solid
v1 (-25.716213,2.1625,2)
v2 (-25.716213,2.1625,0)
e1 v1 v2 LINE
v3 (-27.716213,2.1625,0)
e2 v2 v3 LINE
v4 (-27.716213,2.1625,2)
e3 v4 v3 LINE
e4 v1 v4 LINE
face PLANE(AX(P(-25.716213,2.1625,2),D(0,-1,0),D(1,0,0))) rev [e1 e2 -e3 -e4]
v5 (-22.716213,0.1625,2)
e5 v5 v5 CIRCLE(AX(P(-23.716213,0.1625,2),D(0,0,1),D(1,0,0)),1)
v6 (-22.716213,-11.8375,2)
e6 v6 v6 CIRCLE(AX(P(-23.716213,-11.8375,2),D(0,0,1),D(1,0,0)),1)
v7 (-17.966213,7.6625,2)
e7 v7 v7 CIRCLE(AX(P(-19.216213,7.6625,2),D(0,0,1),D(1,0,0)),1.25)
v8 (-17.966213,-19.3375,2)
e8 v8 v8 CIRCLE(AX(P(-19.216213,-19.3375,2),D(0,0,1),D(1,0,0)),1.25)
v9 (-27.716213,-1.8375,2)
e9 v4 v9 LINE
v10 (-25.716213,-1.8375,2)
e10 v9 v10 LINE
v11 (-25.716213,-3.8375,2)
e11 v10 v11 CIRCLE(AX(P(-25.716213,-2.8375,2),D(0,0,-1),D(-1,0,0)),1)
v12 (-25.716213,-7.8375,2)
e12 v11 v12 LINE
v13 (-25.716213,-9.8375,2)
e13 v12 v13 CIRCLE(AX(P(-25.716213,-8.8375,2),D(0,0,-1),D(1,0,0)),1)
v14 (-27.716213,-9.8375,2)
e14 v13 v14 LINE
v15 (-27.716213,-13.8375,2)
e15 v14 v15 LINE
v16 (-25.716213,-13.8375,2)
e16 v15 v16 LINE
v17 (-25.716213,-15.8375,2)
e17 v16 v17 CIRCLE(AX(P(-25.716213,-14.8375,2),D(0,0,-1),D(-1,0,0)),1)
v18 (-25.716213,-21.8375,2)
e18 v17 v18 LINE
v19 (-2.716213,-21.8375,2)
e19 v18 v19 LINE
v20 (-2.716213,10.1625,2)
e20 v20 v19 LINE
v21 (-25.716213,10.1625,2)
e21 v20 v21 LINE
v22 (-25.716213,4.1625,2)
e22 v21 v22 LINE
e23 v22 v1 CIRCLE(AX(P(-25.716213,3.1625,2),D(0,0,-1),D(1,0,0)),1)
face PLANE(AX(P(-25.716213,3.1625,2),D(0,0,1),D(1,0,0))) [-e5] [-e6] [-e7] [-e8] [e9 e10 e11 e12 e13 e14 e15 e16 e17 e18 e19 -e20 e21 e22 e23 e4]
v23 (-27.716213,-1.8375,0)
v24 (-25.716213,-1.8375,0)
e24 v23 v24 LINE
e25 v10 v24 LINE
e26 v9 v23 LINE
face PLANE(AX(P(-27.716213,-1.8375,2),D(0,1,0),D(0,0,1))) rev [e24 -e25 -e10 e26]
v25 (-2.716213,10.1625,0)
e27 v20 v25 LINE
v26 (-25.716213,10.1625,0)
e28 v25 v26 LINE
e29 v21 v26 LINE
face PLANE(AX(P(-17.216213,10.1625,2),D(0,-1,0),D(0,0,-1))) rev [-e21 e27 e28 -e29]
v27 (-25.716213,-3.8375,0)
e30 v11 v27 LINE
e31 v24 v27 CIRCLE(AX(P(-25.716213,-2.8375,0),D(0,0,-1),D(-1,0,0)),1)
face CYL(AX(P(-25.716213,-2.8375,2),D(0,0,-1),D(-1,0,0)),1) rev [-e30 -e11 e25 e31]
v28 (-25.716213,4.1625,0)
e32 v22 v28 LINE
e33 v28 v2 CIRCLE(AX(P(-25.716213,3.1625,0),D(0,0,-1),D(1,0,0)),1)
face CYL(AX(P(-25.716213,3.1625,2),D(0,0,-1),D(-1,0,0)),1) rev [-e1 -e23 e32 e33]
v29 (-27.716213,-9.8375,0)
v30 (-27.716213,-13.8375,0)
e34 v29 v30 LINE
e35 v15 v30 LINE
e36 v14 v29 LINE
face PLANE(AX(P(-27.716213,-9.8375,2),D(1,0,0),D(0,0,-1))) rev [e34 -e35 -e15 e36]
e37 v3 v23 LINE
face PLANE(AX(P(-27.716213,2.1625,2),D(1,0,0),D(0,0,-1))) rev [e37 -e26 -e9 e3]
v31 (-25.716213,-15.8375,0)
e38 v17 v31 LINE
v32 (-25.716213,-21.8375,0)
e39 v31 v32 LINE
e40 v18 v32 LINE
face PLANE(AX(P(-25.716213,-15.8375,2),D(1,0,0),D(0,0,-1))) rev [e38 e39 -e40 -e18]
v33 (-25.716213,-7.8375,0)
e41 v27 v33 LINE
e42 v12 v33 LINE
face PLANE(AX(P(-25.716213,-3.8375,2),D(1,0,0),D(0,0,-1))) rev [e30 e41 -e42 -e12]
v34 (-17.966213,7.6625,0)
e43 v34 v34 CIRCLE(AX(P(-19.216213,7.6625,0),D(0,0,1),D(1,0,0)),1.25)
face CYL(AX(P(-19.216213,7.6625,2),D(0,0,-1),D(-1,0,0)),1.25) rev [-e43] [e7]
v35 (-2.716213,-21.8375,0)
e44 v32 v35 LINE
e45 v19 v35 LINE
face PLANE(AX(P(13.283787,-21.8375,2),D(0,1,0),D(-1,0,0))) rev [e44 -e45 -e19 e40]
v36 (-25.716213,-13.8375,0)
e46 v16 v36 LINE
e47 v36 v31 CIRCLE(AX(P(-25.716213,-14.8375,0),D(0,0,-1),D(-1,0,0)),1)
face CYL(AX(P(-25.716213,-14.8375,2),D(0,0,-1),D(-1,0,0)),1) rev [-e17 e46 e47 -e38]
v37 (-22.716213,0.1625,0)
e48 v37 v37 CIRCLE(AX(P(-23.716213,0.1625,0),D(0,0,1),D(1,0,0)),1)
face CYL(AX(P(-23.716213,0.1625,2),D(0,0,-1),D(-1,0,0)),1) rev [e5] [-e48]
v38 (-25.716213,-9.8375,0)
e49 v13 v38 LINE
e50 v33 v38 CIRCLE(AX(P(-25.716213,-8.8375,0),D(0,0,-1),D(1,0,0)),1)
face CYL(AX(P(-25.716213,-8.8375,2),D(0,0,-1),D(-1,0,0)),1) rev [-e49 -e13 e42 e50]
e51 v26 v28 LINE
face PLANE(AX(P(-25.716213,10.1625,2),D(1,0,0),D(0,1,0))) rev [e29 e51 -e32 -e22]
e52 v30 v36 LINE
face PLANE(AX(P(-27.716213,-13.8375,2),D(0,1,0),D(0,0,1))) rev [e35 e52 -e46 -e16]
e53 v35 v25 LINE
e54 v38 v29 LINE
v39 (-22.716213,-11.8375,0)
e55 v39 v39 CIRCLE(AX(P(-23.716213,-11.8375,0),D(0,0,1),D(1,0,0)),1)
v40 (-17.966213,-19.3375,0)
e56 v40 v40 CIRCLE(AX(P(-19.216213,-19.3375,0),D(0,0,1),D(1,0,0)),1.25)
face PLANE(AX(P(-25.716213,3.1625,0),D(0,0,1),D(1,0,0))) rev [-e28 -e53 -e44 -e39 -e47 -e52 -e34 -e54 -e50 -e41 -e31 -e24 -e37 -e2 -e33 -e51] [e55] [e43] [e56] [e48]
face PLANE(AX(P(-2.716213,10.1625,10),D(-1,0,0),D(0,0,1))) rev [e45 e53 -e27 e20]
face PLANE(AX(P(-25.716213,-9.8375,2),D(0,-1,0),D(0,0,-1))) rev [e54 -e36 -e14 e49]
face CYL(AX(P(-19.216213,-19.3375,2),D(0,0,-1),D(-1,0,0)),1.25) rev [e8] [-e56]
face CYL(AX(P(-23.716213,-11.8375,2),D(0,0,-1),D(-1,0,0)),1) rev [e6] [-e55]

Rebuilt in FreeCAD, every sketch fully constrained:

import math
import FreeCAD as App
import Part
import Sketcher
from FreeCAD import Vector
Q = App.Units.Quantity


def edges_at(feature, points):
    """Names of the edges that pass closest to the given points."""
    edges = feature.Shape.Edges
    near = lambda p: min(range(len(edges)), key=lambda i: edges[i].distToShape(Part.Vertex(*p))[0])
    return sorted({f"Edge{near(p) + 1}" for p in points})


def add_polygon(sketch, points):
    """Adds a closed chain of lines whose ends are joined by coincident constraints."""
    first, n = sketch.GeometryCount, len(points)
    for a, b in zip(points, points[1:] + points[:1]):
        sketch.addGeometry(Part.LineSegment(App.Vector(*a, 0), App.Vector(*b, 0)), False)
    for i in range(n):
        sketch.addConstraint(Sketcher.Constraint("Coincident", first + i, 2, first + (i + 1) % n, 1))

doc = App.newDocument("Part")
body = doc.addObject("PartDesign::Body", "Body")

# Sketch on XY plane
sketch1 = body.newObject("Sketcher::SketchObject", "Sketch")
sketch1.AttachmentSupport = (doc.getObject("XY_Plane"), [""])
sketch1.MapMode = "FlatFace"
sketch1.addGeometry([
    Part.LineSegment(Vector(13.3, -21.8, 0), Vector(13.3, 10.2, 0)),  # 0
    Part.LineSegment(Vector(13.3, 10.2, 0), Vector(-25.7, 10.2, 0)),  # 1
    Part.LineSegment(Vector(-25.7, 10.2, 0), Vector(-25.7, 4.2, 0)),  # 2
    Part.ArcOfCircle(Part.Circle(Vector(-25.7, 3.2, 0), Vector(0, 0, 1), 1), math.radians(-90), math.radians(90)),  # 3
    Part.LineSegment(Vector(-25.7, 2.2, 0), Vector(-27.7, 2.2, 0)),  # 4
    Part.LineSegment(Vector(-27.7, 2.2, 0), Vector(-27.7, -1.8, 0)),  # 5
    Part.LineSegment(Vector(-27.7, -1.8, 0), Vector(-25.7, -1.8, 0)),  # 6
    Part.ArcOfCircle(Part.Circle(Vector(-25.7, -2.8, 0), Vector(0, 0, 1), 1), math.radians(-90), math.radians(90)),  # 7
    Part.LineSegment(Vector(-25.7, -3.8, 0), Vector(-25.7, -7.8, 0)),  # 8
    Part.ArcOfCircle(Part.Circle(Vector(-25.7, -8.8, 0), Vector(0, 0, 1), 1), math.radians(-90), math.radians(90)),  # 9
    Part.LineSegment(Vector(-25.7, -9.8, 0), Vector(-27.7, -9.8, 0)),  # 10
    Part.LineSegment(Vector(-27.7, -9.8, 0), Vector(-27.7, -13.8, 0)),  # 11
    Part.LineSegment(Vector(-27.7, -13.8, 0), Vector(-25.7, -13.8, 0)),  # 12
    Part.ArcOfCircle(Part.Circle(Vector(-25.7, -14.8, 0), Vector(0, 0, 1), 1), math.radians(-90), math.radians(90)),  # 13
    Part.LineSegment(Vector(-25.7, -15.8, 0), Vector(-25.7, -21.8, 0)),  # 14
    Part.LineSegment(Vector(-25.7, -21.8, 0), Vector(13.3, -21.8, 0)),  # 15
    Part.Circle(Vector(10.8, -19.3, 0), Vector(0, 0, 1), 1.2),  # 16
    Part.Circle(Vector(-19.2, -19.3, 0), Vector(0, 0, 1), 1.2),  # 17
    Part.Circle(Vector(-23.7, -11.8, 0), Vector(0, 0, 1), 1),  # 18
    Part.Circle(Vector(10.8, 7.7, 0), Vector(0, 0, 1), 1.2),  # 19
    Part.Circle(Vector(-23.7, 0.2, 0), Vector(0, 0, 1), 1),  # 20
    Part.Circle(Vector(-19.2, 7.7, 0), Vector(0, 0, 1), 1.2),  # 21
], False)
sketch1.addConstraint([
    Sketcher.Constraint("Coincident", 0, 2, 1, 1),
    Sketcher.Constraint("Coincident", 1, 2, 2, 1),
    Sketcher.Constraint("Coincident", 2, 2, 3, 2),
    Sketcher.Constraint("Tangent", 3, 1, 4, 1),
    Sketcher.Constraint("Coincident", 4, 2, 5, 1),
    Sketcher.Constraint("Coincident", 5, 2, 6, 1),
    Sketcher.Constraint("Tangent", 6, 2, 7, 2),
    Sketcher.Constraint("Coincident", 7, 1, 8, 1),
    Sketcher.Constraint("Coincident", 8, 2, 9, 2),
    Sketcher.Constraint("Tangent", 9, 1, 10, 1),
    Sketcher.Constraint("Coincident", 10, 2, 11, 1),
    Sketcher.Constraint("Coincident", 11, 2, 12, 1),
    Sketcher.Constraint("Tangent", 12, 2, 13, 2),
    Sketcher.Constraint("Coincident", 13, 1, 14, 1),
    Sketcher.Constraint("Coincident", 14, 2, 15, 1),
    Sketcher.Constraint("Coincident", 15, 2, 0, 1),
    Sketcher.Constraint("Vertical", 0),
    Sketcher.Constraint("Horizontal", 1),
    Sketcher.Constraint("Vertical", 2),
    Sketcher.Constraint("Horizontal", 4),
    Sketcher.Constraint("Vertical", 5),
    Sketcher.Constraint("Horizontal", 6),
    Sketcher.Constraint("Vertical", 8),
    Sketcher.Constraint("Horizontal", 10),
    Sketcher.Constraint("Vertical", 11),
    Sketcher.Constraint("Horizontal", 12),
    Sketcher.Constraint("Vertical", 14),
    Sketcher.Constraint("Horizontal", 15),
    Sketcher.Constraint("Equal", 3, 7),
    Sketcher.Constraint("Equal", 7, 9),
    Sketcher.Constraint("Equal", 9, 13),
    Sketcher.Constraint("Equal", 16, 17),
    Sketcher.Constraint("Equal", 13, 18),
    Sketcher.Constraint("Equal", 17, 19),
    Sketcher.Constraint("Equal", 18, 20),
    Sketcher.Constraint("Equal", 19, 21),
    Sketcher.Constraint("Horizontal", 16, 3, 17, 3),
    Sketcher.Constraint("Horizontal", 19, 3, 21, 3),
    Sketcher.Constraint("Vertical", 3, 3, 7, 3),
    Sketcher.Constraint("Vertical", 7, 3, 9, 3),
    Sketcher.Constraint("Vertical", 9, 3, 13, 3),
    Sketcher.Constraint("Vertical", 16, 3, 19, 3),
    Sketcher.Constraint("Vertical", 18, 3, 20, 3),
    Sketcher.Constraint("Vertical", 17, 3, 21, 3),
    Sketcher.Constraint("Vertical", 13, 3, 1, 2),
    Sketcher.Constraint("Vertical", 6, 2, 7, 1),
    Sketcher.Constraint("Vertical", 5, 2, 10, 2),
    Sketcher.Constraint("Vertical", 12, 2, 13, 1),
    Sketcher.Constraint("Equal", 5, 8),
    Sketcher.Constraint("Equal", 8, 11),
    Sketcher.Constraint("Equal", 2, 14),
    Sketcher.Constraint("Diameter", 18, Q("2 mm")),
    Sketcher.Constraint("Diameter", 16, Q("2.5 mm")),
    Sketcher.Constraint("DistanceX", 1, 2, 1, 1, Q("39 mm")),
    Sketcher.Constraint("DistanceX", 4, 2, 4, 1, Q("2 mm")),
    Sketcher.Constraint("DistanceY", 0, 1, 0, 2, Q("32 mm")),
    Sketcher.Constraint("DistanceY", 2, 2, 2, 1, Q("6 mm")),
    Sketcher.Constraint("DistanceX", 17, 3, 16, 3, Q("30 mm")),
    Sketcher.Constraint("DistanceX", 9, 3, 18, 3, Q("2 mm")),
    Sketcher.Constraint("DistanceY", 18, 3, 9, 3, Q("3 mm")),
    Sketcher.Constraint("DistanceY", 16, 3, 19, 3, Q("27 mm")),
    Sketcher.Constraint("DistanceY", 20, 3, 3, 3, Q("3 mm")),
    Sketcher.Constraint("DistanceX", 13, 3, 16, 3, Q("36.5 mm")),
    Sketcher.Constraint("DistanceY", 16, 3, 13, 3, Q("4.5 mm")),
    Sketcher.Constraint("DistanceY", -1, 1, 3, 3, Q("3.1625 mm")),
    Sketcher.Constraint("DistanceX", 3, 3, -1, 1, Q("25.716213 mm")),
])
pad1 = body.newObject("PartDesign::Pad", "Pad")
pad1.Profile = sketch1
pad1.Length = 2

# Sketch on XY plane
sketch2 = body.newObject("Sketcher::SketchObject", "Sketch001")
sketch2.AttachmentSupport = (doc.getObject("XY_Plane"), [""])
sketch2.MapMode = "FlatFace"
add_polygon(sketch2, [(13, 5), (13, -17), (-2, -17), (-2, 5)])  # lines 0-3
sketch2.addConstraint([
    Sketcher.Constraint("Vertical", 0),
    Sketcher.Constraint("Horizontal", 1),
    Sketcher.Constraint("Vertical", 2),
    Sketcher.Constraint("Horizontal", 3),
    Sketcher.Constraint("DistanceY", 0, 2, 0, 1, Q("22 mm")),
    Sketcher.Constraint("DistanceX", 1, 2, 1, 1, Q("15.5 mm")),
    Sketcher.Constraint("DistanceY", 0, 2, -1, 1, Q("16.8375 mm")),
    Sketcher.Constraint("DistanceX", -1, 1, 0, 2, Q("13.283787 mm")),
])
pocket1 = body.newObject("PartDesign::Pocket", "Pocket")
pocket1.Profile = sketch2
pocket1.Length = 2
pocket1.Reversed = True
doc.recompute()

fillet = body.newObject("PartDesign::Fillet", "Fillet")
fillet.Base = (pocket1, edges_at(pocket1, [(13.284, -16.837, 1), (13.284, 5.162, 1)]))
fillet.Radius = 2.5
doc.recompute()

fillet2 = body.newObject("PartDesign::Fillet", "Fillet001")
fillet2.Base = (fillet, edges_at(fillet, [(-2.216, 5.162, 1), (-2.216, -16.837, 1)]))
fillet2.Radius = 5

# Sketch on XY plane
sketch3 = body.newObject("Sketcher::SketchObject", "Sketch002")
sketch3.AttachmentSupport = (doc.getObject("XY_Plane"), [""])
sketch3.MapMode = "FlatFace"
add_polygon(sketch3, [(13, 10), (13, -22), (-3, -22), (-3, 10)])  # lines 0-3
sketch3.addConstraint([
    Sketcher.Constraint("Vertical", 0),
    Sketcher.Constraint("Horizontal", 1),
    Sketcher.Constraint("Vertical", 2),
    Sketcher.Constraint("Horizontal", 3),
    Sketcher.Constraint("DistanceX", 1, 2, 1, 1, Q("16 mm")),
    Sketcher.Constraint("DistanceY", 0, 2, 0, 1, Q("32 mm")),
    Sketcher.Constraint("DistanceY", 0, 2, -1, 1, Q("21.8375 mm")),
    Sketcher.Constraint("DistanceX", -1, 1, 0, 2, Q("13.283787 mm")),
])
pocket2 = body.newObject("PartDesign::Pocket", "Pocket001")
pocket2.Profile = sketch3
pocket2.Length = 10
pocket2.Reversed = True

doc.recompute()
